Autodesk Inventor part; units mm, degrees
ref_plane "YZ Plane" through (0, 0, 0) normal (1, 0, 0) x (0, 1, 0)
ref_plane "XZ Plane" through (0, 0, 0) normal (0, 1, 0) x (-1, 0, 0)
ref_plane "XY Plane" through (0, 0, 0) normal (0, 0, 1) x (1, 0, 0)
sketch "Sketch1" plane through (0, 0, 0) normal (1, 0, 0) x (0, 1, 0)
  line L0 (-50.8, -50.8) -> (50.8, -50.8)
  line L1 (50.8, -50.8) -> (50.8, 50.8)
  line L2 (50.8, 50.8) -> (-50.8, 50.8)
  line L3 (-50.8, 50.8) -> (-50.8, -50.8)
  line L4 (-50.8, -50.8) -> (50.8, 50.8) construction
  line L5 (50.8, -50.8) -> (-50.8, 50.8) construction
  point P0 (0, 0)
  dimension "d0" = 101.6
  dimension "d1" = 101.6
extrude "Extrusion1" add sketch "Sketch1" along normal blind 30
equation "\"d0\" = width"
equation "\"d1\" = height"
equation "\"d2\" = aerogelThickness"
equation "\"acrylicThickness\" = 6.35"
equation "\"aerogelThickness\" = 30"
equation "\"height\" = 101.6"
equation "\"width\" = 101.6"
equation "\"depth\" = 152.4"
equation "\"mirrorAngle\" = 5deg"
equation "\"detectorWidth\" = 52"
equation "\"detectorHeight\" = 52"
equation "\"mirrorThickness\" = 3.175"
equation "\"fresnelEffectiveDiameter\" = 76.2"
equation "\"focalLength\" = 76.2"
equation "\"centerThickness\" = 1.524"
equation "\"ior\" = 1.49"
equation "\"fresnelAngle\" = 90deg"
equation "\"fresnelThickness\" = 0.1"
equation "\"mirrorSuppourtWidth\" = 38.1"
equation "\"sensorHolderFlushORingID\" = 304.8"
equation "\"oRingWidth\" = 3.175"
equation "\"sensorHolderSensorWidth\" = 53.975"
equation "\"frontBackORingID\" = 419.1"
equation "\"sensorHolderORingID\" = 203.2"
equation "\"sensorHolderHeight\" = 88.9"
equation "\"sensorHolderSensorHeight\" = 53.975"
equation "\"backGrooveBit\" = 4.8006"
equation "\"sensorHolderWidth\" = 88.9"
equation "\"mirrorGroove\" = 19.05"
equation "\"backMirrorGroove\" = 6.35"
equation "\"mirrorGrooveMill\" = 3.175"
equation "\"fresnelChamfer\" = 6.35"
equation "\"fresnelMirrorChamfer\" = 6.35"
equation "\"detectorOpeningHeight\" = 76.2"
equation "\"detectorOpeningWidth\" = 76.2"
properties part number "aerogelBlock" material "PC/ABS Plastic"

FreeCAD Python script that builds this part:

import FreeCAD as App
import Part
import Sketcher
from FreeCAD import Vector
Q = App.Units.Quantity

doc = App.newDocument("Part")
body = doc.addObject("PartDesign::Body", "Body")

# Sketch on YZ plane
sketch1 = doc.addObject("Sketcher::SketchObject", "Sketch")
body.addObject(sketch1)
sketch1.AttachmentSupport = (doc.YZ_Plane, [""])
sketch1.MapMode = "FlatFace"
sketch1.addGeometry(Part.LineSegment(Vector(-51, 51, 0), Vector(-51, -51, 0)), False)
sketch1.addGeometry(Part.LineSegment(Vector(-51, -51, 0), Vector(51, -51, 0)), False)
sketch1.addGeometry(Part.LineSegment(Vector(51, -51, 0), Vector(51, 51, 0)), False)
sketch1.addGeometry(Part.LineSegment(Vector(51, 51, 0), Vector(-51, 51, 0)), False)
sketch1.addConstraint(Sketcher.Constraint("Coincident", 0, 2, 1, 1))
sketch1.addConstraint(Sketcher.Constraint("Coincident", 1, 2, 2, 1))
sketch1.addConstraint(Sketcher.Constraint("Coincident", 2, 2, 3, 1))
sketch1.addConstraint(Sketcher.Constraint("Coincident", 3, 2, 0, 1))
sketch1.addConstraint(Sketcher.Constraint("Vertical", 0))
sketch1.addConstraint(Sketcher.Constraint("Horizontal", 1))
sketch1.addConstraint(Sketcher.Constraint("Vertical", 2))
sketch1.addConstraint(Sketcher.Constraint("Horizontal", 3))
sketch1.addConstraint(Sketcher.Constraint("Symmetric", 0, 2, 2, 2, -1, 1))
sketch1.addConstraint(Sketcher.Constraint("Equal", 3, 0))
sketch1.addConstraint(Sketcher.Constraint("DistanceX", 1, 1, 1, 2, Q("4 in")))
pad1 = doc.addObject("PartDesign::Pad", "Pad")
body.addObject(pad1)
pad1.Profile = sketch1
pad1.Length = Q("1.1811024 in")

doc.recompute()
